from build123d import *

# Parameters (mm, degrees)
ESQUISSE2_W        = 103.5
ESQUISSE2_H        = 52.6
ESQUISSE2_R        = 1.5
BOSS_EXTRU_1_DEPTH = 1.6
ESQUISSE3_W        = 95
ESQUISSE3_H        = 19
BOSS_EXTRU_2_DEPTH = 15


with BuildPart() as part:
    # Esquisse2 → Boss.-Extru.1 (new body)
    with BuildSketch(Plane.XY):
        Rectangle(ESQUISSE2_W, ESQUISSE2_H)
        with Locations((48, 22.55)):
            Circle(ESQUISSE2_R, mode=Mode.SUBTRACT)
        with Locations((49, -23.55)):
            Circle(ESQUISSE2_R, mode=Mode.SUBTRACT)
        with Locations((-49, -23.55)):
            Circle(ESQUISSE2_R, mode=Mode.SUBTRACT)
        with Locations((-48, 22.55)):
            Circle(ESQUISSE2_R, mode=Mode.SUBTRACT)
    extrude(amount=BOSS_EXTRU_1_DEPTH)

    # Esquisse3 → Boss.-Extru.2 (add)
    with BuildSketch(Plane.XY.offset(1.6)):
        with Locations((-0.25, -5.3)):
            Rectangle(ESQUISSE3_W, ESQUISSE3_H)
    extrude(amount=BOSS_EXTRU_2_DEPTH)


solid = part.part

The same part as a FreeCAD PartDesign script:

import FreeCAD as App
import Part
import Sketcher


def add_polygon(sketch, points):
    """Adds a closed chain of lines whose ends are joined by coincident constraints."""
    first, n = sketch.GeometryCount, len(points)
    for a, b in zip(points, points[1:] + points[:1]):
        sketch.addGeometry(Part.LineSegment(App.Vector(*a, 0), App.Vector(*b, 0)), False)
    for i in range(n):
        sketch.addConstraint(Sketcher.Constraint("Coincident", first + i, 2, first + (i + 1) % n, 1))

doc = App.newDocument("Part")
body = doc.addObject("PartDesign::Body", "Body")

# Sketch on XY plane
sketch1 = body.newObject("Sketcher::SketchObject", "Sketch")
sketch1.AttachmentSupport = (doc.getObject("XY_Plane"), [""])
sketch1.MapMode = "FlatFace"
add_polygon(sketch1, [(-51.8, 26.3), (-51.8, -26.3), (51.8, -26.3), (51.8, 26.3)])  # lines 0-3
sketch1.addGeometry(Part.Circle(App.Vector(-49, -23.6, 0), App.Vector(0, 0, 1), 1.5), False)  # 4
sketch1.addGeometry(Part.Circle(App.Vector(49, -23.6, 0), App.Vector(0, 0, 1), 1.5), False)  # 5
sketch1.addGeometry(Part.Circle(App.Vector(-48, 22.6, 0), App.Vector(0, 0, 1), 1.5), False)  # 6
sketch1.addGeometry(Part.Circle(App.Vector(48, 22.6, 0), App.Vector(0, 0, 1), 1.5), False)  # 7
sketch1.addConstraint(Sketcher.Constraint("Vertical", 0))
sketch1.addConstraint(Sketcher.Constraint("Horizontal", 1))
sketch1.addConstraint(Sketcher.Constraint("Vertical", 2))
sketch1.addConstraint(Sketcher.Constraint("Horizontal", 3))
sketch1.addConstraint(Sketcher.Constraint("Equal", 4, 5))
sketch1.addConstraint(Sketcher.Constraint("Equal", 5, 6))
sketch1.addConstraint(Sketcher.Constraint("Equal", 6, 7))
sketch1.addConstraint(Sketcher.Constraint("Symmetric", 0, 2, 2, 2, -1, 1))
sketch1.addConstraint(Sketcher.Constraint("Symmetric", 4, 3, 5, 3, -2))
sketch1.addConstraint(Sketcher.Constraint("Symmetric", 6, 3, 7, 3, -2))
sketch1.addConstraint(Sketcher.Constraint("Diameter", 4, 3.0))
sketch1.addConstraint(Sketcher.Constraint("DistanceX", 1, 1, 1, 2, 103.5))
sketch1.addConstraint(Sketcher.Constraint("DistanceY", 0, 2, 0, 1, 52.6))
sketch1.addConstraint(Sketcher.Constraint("DistanceX", 4, 3, -1, 1, 49.0))
sketch1.addConstraint(Sketcher.Constraint("DistanceX", 6, 3, -1, 1, 48.0))
sketch1.addConstraint(Sketcher.Constraint("DistanceY", 4, 3, 6, 3, 46.1))
sketch1.addConstraint(Sketcher.Constraint("DistanceY", 4, 3, -1, 1, 23.55))
pad1 = body.newObject("PartDesign::Pad", "Pad")
pad1.Profile = sketch1
pad1.Length = 1.6

# Sketch on XY plane
sketch2 = body.newObject("Sketcher::SketchObject", "Sketch001")
sketch2.AttachmentSupport = (doc.getObject("XY_Plane"), [""])
sketch2.MapMode = "FlatFace"
sketch2.AttachmentOffset = App.Placement(App.Vector(0, 0, 1.6), App.Rotation())
add_polygon(sketch2, [(-48, 4), (-48, -15), (47, -15), (47, 4)])  # lines 0-3
sketch2.addConstraint(Sketcher.Constraint("Vertical", 0))
sketch2.addConstraint(Sketcher.Constraint("Horizontal", 1))
sketch2.addConstraint(Sketcher.Constraint("Vertical", 2))
sketch2.addConstraint(Sketcher.Constraint("Horizontal", 3))
sketch2.addConstraint(Sketcher.Constraint("DistanceX", 1, 1, 1, 2, 95.0))
sketch2.addConstraint(Sketcher.Constraint("DistanceY", 0, 2, 0, 1, 19.0))
sketch2.addConstraint(Sketcher.Constraint("DistanceY", 0, 2, -1, 1, 14.8))
sketch2.addConstraint(Sketcher.Constraint("DistanceX", 0, 2, -1, 1, 47.75))
pad2 = body.newObject("PartDesign::Pad", "Pad001")
pad2.Profile = sketch2
pad2.Length = 15

doc.recompute()
